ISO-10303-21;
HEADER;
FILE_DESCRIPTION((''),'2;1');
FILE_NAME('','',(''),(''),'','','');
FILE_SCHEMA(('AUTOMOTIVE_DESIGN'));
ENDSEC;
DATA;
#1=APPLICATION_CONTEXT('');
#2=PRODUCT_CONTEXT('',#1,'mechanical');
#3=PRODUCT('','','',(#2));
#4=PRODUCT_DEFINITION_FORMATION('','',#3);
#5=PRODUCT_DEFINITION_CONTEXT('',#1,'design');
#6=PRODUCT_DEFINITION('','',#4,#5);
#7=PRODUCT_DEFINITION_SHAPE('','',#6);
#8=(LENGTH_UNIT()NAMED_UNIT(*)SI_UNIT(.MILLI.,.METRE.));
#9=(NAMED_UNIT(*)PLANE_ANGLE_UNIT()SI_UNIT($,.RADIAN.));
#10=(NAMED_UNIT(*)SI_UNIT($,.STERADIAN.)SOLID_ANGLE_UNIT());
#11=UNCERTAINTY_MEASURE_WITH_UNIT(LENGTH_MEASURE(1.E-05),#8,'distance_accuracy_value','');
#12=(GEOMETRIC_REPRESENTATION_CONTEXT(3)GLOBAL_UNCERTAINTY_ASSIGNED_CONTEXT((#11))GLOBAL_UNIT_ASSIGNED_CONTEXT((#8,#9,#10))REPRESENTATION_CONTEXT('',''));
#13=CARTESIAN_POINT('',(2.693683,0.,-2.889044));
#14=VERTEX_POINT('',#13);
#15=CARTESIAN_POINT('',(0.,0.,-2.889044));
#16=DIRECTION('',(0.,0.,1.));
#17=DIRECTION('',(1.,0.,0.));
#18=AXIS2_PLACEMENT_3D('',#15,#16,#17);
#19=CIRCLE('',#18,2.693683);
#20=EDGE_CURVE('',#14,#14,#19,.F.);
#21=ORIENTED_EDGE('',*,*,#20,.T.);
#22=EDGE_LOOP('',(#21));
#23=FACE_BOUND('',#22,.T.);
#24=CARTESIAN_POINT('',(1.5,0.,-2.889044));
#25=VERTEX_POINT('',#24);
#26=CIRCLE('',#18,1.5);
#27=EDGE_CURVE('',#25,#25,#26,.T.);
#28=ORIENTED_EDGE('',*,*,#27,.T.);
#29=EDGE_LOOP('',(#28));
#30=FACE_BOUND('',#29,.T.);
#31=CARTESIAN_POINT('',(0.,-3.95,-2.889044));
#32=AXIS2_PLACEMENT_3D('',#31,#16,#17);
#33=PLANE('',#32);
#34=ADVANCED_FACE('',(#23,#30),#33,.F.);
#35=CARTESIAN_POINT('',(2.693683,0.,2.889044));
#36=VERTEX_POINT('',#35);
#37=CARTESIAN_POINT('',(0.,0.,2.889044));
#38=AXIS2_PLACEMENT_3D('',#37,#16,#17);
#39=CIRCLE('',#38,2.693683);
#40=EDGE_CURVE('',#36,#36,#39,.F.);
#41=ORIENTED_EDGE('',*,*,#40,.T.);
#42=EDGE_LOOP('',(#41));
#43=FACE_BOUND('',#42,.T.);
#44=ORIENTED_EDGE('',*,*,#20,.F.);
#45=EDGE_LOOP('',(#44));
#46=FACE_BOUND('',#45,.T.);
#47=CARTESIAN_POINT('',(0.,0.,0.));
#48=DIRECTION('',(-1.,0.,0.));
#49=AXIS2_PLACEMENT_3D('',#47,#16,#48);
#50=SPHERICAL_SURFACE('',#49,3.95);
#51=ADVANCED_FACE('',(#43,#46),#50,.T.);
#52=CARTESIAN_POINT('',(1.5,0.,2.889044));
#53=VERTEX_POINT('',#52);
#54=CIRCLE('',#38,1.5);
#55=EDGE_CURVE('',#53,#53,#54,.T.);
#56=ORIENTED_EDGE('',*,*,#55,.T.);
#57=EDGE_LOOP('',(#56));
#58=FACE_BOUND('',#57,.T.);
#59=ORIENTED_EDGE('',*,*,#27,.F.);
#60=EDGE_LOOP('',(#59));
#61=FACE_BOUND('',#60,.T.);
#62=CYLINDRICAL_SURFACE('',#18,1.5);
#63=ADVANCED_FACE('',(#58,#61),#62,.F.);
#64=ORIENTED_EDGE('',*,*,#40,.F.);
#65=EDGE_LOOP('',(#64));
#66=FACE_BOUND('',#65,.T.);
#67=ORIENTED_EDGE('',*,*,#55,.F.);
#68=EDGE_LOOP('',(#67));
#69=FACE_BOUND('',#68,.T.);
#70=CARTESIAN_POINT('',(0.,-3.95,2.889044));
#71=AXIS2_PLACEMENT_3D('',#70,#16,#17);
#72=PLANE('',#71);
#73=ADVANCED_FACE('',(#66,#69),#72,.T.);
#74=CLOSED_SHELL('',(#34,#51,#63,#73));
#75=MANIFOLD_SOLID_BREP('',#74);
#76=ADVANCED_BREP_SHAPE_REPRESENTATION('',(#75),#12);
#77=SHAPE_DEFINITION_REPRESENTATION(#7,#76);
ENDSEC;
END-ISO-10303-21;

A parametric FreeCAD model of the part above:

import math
import FreeCAD as App
import Part
import Sketcher
from FreeCAD import Vector


def add_polygon(sketch, points):
    """Adds a closed chain of lines whose ends are joined by coincident constraints."""
    first, n = sketch.GeometryCount, len(points)
    for a, b in zip(points, points[1:] + points[:1]):
        sketch.addGeometry(Part.LineSegment(App.Vector(*a, 0), App.Vector(*b, 0)), False)
    for i in range(n):
        sketch.addConstraint(Sketcher.Constraint("Coincident", first + i, 2, first + (i + 1) % n, 1))

doc = App.newDocument("Part")
params = doc.addObject("Spreadsheet::Sheet", "Params")
for row, (alias, value) in enumerate([
    ("sketch1_radius", "3.95 mm"),
    ("revolution_angle", "360 deg"),
    ("sketch2_width", "7.9 mm"),
    ("sketch3_diameter", "3 mm"),
], start=1):
    params.set(f"A{row}", alias)
    params.set(f"B{row}", "=" + value)
    params.setAlias(f"B{row}", alias)

body = doc.addObject("PartDesign::Body", "Body")

sketch1 = doc.addObject("Sketcher::SketchObject", "Sketch")
body.addObject(sketch1)
sketch1.AttachmentSupport = (doc.XZ_Plane, [""])
sketch1.MapMode = "FlatFace"
sketch1.addGeometry([
    Part.LineSegment(Vector(0, -4, 0), Vector(0, 4, 0)),
    Part.ArcOfCircle(Part.Circle(Vector(0, 0, 0), Vector(0, 0, 1), 4), math.radians(-90), math.radians(90)),
], False)
sketch1.addConstraint([
    Sketcher.Constraint("Coincident", 0, 1, 1, 1),
    Sketcher.Constraint("Coincident", 1, 2, 0, 2),
    Sketcher.Constraint("Vertical", 0),
    Sketcher.Constraint("Coincident", 1, 3, -1, 1),
    Sketcher.Constraint("PointOnObject", 0, 1, -2),
    Sketcher.Constraint("Radius", 1, 3.95),
])
sketch1.setExpression("Constraints[5]", "Params.sketch1_radius")
revolution = doc.addObject("PartDesign::Revolution", "Revolution")
body.addObject(revolution)
revolution.Profile = sketch1
revolution.ReferenceAxis = (sketch1, ["V_Axis"])
revolution.setExpression("Angle", "Params.revolution_angle")

sketch2 = doc.addObject("Sketcher::SketchObject", "Sketch001")
body.addObject(sketch2)
sketch2.AttachmentSupport = (doc.XZ_Plane, [""])
sketch2.MapMode = "FlatFace"
add_polygon(sketch2, [(-4, 2.9), (-4, 4), (4, 4), (4, 2.9)])
add_polygon(sketch2, [(-4, -4), (-4, -2.9), (4, -2.9), (4, -4)])
sketch2.addConstraint([
    Sketcher.Constraint("Vertical", 0),
    Sketcher.Constraint("Horizontal", 1),
    Sketcher.Constraint("Vertical", 2),
    Sketcher.Constraint("Horizontal", 3),
    Sketcher.Constraint("Vertical", 4),
    Sketcher.Constraint("Horizontal", 5),
    Sketcher.Constraint("Vertical", 6),
    Sketcher.Constraint("Horizontal", 7),
    Sketcher.Constraint("Symmetric", 2, 2, 4, 2, -1, 1),
    Sketcher.Constraint("Symmetric", 0, 2, 6, 2, -1, 1),
    Sketcher.Constraint("Vertical", 3, 2, 4, 2),
    Sketcher.Constraint("DistanceX", 1, 1, 1, 2, 7.9),
    Sketcher.Constraint("DistanceY", 6, 2, 1, 2, 7.9),
    Sketcher.Constraint("DistanceY", 0, 1, 0, 2, 1.060956),
])
sketch2.setExpression("Constraints[19]", "Params.sketch2_width")
pocket1 = doc.addObject("PartDesign::Pocket", "Pocket")
body.addObject(pocket1)
pocket1.Profile = sketch2
pocket1.Type = "ThroughAll"
pocket1.Midplane = True

sketch3 = doc.addObject("Sketcher::SketchObject", "Sketch002")
body.addObject(sketch3)
sketch3.AttachmentSupport = (doc.XY_Plane, [""])
sketch3.MapMode = "FlatFace"
sketch3.AttachmentOffset = App.Placement(Vector(0, 0, 2.889044), App.Rotation())
sketch3.addGeometry(Part.Circle(Vector(0, 0, 0), Vector(0, 0, 1), 1.5), False)
sketch3.addConstraint([
    Sketcher.Constraint("Coincident", 0, 3, -1, 1),
    Sketcher.Constraint("Diameter", 0, 3.0),
])
sketch3.setExpression("Constraints[1]", "Params.sketch3_diameter")
pocket2 = doc.addObject("PartDesign::Pocket", "Pocket001")
body.addObject(pocket2)
pocket2.Profile = sketch3
pocket2.Type = "ThroughAll"

doc.recompute()
